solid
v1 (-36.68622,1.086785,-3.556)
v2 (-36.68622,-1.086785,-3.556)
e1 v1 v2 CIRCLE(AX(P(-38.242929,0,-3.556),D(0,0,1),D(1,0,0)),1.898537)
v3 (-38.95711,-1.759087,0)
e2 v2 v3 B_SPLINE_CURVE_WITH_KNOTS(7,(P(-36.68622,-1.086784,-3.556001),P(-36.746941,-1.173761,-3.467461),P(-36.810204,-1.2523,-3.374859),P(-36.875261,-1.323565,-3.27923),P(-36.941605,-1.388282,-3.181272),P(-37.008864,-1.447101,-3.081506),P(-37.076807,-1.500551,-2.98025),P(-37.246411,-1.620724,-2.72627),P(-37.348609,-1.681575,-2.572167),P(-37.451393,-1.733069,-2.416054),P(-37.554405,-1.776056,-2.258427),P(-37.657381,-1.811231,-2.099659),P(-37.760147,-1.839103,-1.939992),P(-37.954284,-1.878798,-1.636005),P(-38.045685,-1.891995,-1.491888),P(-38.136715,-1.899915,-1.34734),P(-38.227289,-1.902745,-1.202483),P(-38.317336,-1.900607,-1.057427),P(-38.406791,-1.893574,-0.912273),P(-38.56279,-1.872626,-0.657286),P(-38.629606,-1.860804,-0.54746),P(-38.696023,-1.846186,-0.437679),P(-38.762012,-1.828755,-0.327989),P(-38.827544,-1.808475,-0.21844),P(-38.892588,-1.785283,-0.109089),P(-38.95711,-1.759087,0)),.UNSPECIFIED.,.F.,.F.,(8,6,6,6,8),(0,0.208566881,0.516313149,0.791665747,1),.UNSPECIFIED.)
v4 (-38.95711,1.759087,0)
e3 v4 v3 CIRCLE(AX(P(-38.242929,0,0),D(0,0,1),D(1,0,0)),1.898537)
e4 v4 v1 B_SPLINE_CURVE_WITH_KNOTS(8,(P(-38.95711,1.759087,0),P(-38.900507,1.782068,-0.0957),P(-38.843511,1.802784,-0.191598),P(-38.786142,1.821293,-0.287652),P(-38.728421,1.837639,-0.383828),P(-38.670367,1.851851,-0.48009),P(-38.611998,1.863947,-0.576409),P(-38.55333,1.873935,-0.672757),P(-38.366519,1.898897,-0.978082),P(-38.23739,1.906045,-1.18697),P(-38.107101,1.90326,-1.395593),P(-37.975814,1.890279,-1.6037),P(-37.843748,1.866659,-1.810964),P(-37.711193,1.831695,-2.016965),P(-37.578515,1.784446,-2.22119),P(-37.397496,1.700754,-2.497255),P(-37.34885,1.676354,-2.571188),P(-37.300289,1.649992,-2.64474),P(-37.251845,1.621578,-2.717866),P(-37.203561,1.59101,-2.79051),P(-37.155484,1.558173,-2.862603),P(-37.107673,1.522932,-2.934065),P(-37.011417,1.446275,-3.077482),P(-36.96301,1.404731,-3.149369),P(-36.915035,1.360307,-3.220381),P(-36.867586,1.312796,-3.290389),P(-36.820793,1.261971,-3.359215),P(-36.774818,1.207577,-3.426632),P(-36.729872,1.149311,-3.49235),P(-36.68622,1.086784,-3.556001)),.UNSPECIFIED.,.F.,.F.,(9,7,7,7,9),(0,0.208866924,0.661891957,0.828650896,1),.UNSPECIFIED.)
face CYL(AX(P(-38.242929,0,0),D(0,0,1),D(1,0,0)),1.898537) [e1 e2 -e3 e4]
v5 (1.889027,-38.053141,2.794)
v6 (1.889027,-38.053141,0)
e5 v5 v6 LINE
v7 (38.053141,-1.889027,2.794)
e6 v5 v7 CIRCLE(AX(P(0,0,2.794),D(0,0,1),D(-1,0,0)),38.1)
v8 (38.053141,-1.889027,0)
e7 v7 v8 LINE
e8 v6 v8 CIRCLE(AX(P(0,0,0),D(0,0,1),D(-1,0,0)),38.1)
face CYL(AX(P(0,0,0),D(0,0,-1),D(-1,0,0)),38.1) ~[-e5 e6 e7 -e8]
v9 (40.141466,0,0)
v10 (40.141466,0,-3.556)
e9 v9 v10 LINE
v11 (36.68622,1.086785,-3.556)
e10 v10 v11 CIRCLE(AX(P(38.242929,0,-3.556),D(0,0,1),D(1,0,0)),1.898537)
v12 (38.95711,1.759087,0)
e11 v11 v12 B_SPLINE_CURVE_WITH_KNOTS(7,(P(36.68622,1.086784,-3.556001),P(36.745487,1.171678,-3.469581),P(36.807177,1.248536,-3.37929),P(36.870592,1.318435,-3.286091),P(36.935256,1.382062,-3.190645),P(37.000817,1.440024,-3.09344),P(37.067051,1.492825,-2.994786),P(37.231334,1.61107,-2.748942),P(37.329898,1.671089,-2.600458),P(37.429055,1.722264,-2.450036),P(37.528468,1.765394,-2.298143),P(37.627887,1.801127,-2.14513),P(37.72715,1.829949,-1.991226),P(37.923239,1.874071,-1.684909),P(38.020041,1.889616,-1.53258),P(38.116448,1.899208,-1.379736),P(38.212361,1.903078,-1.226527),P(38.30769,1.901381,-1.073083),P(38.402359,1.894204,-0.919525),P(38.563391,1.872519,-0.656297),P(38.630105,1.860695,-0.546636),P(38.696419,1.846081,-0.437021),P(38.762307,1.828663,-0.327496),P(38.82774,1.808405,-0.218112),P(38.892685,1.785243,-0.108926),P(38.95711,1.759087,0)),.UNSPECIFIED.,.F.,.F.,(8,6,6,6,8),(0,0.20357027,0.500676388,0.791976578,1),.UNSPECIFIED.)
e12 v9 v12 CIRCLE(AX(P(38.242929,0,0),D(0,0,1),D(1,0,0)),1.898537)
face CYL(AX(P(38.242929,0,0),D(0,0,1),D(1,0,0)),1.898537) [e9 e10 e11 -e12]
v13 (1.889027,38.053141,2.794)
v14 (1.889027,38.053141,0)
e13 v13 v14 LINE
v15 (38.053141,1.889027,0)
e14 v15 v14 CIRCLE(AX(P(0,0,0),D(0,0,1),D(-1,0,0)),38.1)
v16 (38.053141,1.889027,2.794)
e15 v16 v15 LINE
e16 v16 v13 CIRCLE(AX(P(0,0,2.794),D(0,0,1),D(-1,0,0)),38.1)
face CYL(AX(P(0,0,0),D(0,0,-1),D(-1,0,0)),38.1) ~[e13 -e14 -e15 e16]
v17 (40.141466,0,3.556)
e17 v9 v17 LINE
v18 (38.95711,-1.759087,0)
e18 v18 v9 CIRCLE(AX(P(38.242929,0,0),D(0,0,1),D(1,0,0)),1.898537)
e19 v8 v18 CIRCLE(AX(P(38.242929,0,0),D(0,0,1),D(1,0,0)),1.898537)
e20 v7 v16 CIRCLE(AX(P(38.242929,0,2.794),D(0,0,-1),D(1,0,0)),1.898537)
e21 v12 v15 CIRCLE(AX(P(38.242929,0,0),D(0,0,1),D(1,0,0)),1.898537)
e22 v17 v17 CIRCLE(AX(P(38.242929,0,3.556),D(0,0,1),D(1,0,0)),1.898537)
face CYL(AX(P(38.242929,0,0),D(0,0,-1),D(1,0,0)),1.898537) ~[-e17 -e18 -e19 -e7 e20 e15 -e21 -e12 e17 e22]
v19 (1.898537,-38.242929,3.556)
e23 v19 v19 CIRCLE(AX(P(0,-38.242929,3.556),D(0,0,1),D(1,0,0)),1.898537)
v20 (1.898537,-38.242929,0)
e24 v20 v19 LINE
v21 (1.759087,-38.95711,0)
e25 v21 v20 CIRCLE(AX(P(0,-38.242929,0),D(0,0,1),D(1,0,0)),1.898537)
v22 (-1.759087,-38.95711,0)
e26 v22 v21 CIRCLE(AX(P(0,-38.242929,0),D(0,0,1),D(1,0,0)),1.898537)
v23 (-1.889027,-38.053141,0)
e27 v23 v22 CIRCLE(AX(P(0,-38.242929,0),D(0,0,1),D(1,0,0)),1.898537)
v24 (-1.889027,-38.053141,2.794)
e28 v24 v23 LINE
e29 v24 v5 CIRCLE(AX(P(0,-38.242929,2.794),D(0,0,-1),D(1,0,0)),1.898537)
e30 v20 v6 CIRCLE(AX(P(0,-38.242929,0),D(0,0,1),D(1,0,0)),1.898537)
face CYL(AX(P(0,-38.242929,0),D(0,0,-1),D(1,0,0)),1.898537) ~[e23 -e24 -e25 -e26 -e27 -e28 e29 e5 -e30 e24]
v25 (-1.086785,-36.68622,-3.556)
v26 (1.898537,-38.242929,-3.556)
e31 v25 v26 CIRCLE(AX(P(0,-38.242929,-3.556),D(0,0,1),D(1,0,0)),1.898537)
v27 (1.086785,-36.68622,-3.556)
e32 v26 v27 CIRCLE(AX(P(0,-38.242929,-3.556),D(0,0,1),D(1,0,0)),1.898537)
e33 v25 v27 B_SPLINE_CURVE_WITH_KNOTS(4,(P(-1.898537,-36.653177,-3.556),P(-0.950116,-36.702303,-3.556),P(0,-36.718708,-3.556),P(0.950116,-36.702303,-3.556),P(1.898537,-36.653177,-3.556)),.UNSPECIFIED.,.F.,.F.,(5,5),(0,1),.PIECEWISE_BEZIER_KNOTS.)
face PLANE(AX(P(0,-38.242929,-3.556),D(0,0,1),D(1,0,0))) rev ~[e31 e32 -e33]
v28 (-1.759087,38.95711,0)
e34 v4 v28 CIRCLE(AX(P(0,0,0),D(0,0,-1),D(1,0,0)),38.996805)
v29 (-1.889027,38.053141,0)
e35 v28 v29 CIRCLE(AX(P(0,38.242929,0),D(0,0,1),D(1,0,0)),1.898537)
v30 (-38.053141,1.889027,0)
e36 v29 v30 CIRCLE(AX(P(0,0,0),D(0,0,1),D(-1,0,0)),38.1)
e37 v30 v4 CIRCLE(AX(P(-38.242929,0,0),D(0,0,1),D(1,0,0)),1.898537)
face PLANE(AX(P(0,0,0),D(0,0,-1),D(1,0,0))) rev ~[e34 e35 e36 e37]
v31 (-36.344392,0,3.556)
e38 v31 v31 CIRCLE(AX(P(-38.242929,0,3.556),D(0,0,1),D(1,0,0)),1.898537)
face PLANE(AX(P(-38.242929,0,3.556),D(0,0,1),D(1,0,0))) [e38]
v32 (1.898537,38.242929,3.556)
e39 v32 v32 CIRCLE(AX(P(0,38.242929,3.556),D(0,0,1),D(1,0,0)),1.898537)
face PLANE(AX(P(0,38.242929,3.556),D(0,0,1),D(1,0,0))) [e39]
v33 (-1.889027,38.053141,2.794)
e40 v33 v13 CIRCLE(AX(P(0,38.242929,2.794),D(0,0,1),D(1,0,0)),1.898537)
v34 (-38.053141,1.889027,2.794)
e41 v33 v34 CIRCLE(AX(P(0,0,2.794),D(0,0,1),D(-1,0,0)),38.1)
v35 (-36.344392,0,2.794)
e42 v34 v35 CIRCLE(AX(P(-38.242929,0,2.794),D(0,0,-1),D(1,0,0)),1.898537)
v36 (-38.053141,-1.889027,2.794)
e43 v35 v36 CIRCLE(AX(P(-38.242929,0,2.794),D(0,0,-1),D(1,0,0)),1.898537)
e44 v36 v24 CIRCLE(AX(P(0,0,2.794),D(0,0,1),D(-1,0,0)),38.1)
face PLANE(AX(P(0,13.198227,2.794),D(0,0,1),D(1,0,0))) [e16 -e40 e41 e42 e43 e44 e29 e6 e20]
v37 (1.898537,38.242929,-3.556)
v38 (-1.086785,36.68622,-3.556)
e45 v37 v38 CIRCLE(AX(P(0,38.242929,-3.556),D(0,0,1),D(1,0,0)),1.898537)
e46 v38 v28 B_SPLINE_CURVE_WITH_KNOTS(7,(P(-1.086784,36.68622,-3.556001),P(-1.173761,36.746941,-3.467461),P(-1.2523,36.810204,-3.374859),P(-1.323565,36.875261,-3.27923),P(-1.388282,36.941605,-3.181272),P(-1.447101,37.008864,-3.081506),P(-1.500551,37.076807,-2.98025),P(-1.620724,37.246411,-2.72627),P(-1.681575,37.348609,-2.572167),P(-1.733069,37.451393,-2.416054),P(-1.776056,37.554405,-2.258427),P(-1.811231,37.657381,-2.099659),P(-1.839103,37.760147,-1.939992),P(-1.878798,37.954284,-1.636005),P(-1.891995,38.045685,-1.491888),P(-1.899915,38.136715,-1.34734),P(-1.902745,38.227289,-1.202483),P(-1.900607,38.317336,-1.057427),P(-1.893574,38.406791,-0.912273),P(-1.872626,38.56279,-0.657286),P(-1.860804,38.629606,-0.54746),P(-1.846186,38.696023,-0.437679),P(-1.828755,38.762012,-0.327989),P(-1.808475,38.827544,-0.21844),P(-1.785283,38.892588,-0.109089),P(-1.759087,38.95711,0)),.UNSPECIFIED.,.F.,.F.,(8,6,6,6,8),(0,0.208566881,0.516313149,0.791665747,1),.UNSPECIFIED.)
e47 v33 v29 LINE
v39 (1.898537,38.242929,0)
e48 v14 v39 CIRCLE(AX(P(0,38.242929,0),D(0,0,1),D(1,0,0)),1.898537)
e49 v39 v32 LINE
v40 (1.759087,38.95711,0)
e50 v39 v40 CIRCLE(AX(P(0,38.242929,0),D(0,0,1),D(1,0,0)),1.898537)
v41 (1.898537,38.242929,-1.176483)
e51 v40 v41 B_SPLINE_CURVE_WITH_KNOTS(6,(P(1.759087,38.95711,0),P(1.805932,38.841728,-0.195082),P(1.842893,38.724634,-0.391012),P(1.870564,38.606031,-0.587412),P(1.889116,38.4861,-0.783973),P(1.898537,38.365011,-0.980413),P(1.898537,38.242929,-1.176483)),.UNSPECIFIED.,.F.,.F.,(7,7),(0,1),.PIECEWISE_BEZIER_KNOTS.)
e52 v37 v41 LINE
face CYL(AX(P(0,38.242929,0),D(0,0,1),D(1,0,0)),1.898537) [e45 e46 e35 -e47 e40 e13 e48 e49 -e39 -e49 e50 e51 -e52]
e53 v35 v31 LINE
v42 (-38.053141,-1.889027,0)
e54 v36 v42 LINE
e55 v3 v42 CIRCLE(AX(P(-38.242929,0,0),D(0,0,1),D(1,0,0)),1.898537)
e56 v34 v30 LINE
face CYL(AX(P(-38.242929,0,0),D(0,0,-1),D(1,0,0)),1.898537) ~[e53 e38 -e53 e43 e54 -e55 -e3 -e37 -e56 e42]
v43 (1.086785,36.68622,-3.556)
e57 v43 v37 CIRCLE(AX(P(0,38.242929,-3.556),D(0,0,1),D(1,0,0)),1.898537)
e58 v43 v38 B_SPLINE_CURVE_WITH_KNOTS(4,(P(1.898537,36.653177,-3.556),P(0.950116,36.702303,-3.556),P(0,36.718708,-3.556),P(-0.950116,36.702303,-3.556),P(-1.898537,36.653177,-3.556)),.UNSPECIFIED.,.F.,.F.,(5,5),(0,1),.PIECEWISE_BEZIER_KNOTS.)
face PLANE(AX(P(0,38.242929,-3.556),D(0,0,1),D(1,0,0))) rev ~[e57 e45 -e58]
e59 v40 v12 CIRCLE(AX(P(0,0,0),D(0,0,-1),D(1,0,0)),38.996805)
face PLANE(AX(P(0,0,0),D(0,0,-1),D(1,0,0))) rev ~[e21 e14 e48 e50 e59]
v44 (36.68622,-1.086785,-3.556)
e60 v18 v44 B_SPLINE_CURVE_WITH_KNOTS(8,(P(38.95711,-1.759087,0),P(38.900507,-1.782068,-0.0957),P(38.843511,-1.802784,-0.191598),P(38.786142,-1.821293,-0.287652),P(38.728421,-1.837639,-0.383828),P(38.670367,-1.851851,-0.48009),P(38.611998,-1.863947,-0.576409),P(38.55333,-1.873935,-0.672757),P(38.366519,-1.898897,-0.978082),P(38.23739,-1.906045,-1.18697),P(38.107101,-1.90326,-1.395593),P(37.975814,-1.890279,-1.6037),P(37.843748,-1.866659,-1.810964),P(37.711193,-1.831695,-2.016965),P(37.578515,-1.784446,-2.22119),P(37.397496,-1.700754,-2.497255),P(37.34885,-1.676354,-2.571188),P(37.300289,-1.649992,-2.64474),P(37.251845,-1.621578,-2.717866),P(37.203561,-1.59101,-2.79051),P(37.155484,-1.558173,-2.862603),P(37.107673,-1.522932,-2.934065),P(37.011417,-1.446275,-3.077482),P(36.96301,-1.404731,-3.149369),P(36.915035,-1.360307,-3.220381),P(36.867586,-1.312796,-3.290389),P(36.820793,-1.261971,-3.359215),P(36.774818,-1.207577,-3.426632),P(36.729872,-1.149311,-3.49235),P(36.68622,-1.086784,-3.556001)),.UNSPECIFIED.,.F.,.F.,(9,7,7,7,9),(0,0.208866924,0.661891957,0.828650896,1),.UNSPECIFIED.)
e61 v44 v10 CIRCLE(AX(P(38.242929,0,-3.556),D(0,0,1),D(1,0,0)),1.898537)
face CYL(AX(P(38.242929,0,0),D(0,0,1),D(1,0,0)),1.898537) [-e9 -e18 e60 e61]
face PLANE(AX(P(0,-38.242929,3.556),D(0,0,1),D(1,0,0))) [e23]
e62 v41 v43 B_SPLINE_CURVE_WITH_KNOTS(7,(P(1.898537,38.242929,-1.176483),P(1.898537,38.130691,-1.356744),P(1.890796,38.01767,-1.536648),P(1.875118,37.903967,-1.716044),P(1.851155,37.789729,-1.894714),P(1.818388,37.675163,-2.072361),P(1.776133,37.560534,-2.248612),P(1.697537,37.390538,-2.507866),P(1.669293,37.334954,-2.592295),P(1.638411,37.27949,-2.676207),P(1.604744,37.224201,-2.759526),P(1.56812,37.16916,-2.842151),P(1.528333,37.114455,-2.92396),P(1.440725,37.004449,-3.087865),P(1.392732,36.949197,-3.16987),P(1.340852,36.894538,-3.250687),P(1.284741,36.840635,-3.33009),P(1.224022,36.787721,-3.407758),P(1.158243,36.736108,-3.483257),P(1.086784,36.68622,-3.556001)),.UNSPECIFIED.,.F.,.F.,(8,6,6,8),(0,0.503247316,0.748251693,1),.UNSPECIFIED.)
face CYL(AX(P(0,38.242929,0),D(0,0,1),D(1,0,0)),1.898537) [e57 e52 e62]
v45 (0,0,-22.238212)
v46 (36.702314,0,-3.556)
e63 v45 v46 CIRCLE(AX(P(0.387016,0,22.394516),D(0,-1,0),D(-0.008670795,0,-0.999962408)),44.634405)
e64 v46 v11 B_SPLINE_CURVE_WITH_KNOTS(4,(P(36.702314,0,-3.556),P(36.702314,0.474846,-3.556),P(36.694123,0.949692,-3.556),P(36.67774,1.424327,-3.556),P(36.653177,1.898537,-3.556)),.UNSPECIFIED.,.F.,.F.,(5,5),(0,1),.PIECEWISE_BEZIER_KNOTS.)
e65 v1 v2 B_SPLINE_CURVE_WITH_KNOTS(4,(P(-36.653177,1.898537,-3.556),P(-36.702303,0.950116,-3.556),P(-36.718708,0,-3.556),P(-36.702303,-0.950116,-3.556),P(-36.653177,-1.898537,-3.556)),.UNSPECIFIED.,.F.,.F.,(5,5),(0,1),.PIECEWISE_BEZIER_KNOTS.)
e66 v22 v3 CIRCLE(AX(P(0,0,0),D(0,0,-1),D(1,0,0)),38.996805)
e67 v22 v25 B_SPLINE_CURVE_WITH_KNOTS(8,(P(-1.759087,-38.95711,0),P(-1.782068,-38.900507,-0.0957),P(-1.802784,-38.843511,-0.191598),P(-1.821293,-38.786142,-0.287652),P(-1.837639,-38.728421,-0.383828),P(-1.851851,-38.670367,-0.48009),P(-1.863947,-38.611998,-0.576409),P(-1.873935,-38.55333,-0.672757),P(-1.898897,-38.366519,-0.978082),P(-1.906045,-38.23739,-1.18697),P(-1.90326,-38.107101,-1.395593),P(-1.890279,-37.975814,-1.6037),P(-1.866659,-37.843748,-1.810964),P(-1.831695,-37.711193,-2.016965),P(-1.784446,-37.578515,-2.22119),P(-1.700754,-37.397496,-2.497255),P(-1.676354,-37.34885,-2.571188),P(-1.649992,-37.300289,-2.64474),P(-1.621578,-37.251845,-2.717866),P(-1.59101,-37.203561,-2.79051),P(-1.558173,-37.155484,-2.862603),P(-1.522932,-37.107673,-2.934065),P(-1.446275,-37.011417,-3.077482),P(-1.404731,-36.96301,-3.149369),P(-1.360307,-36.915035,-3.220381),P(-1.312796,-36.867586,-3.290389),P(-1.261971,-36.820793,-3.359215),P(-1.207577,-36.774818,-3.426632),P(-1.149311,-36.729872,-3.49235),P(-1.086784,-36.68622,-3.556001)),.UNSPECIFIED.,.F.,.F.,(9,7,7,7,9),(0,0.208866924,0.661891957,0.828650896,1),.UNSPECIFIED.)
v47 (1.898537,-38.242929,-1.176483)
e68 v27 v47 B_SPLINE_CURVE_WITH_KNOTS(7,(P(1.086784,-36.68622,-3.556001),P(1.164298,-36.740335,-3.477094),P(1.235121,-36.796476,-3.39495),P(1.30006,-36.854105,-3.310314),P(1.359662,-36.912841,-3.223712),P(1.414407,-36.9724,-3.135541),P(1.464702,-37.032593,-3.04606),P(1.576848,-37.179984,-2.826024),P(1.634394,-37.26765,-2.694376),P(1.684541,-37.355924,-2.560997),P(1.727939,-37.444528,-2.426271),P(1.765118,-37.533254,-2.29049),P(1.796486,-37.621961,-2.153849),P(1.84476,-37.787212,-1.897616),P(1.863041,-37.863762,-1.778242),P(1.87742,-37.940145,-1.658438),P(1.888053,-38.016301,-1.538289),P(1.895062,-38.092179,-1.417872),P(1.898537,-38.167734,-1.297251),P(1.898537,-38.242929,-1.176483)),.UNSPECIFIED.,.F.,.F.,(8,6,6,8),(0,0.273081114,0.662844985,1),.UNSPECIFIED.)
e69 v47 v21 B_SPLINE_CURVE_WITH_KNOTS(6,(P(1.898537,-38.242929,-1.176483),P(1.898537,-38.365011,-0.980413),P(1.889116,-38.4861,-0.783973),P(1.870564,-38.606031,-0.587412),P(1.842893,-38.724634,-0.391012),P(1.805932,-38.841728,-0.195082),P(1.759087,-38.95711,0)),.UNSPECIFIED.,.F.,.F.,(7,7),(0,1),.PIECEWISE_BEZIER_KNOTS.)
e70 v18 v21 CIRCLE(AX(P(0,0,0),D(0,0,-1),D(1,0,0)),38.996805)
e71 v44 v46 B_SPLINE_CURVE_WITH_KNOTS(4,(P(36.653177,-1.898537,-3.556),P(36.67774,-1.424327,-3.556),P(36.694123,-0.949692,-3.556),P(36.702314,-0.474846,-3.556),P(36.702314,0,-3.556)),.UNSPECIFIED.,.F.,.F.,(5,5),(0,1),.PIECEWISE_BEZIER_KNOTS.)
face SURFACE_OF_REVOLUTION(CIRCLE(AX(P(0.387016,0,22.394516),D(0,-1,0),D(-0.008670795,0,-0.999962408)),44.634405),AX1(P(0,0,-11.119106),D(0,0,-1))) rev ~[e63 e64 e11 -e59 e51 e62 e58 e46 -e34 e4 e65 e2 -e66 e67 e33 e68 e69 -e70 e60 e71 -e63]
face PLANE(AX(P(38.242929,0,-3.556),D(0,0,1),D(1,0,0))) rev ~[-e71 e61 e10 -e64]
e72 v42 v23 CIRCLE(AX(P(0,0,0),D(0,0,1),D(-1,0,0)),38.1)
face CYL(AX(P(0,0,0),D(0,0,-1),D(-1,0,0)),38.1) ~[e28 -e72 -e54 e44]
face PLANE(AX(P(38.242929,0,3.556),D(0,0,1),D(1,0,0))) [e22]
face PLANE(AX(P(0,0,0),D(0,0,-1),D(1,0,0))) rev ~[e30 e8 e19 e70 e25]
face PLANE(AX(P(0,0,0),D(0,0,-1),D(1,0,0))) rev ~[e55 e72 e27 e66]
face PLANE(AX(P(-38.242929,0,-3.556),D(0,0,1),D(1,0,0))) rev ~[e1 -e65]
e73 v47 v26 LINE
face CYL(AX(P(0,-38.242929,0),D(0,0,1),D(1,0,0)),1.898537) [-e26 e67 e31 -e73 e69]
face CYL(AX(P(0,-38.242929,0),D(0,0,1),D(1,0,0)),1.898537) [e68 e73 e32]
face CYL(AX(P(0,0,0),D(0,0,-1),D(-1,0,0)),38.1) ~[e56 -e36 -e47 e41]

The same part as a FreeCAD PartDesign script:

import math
import FreeCAD as App
import Part
import Sketcher
Q = App.Units.Quantity

doc = App.newDocument("Part")
params = doc.addObject("Spreadsheet::Sheet", "Params")
for row, (alias, value) in enumerate([
    ("revolution_angle", "360 deg"),
    ("sketch2_diameter", "3 in"),
    ("pad1_length", "0.11 in"),
    ("pad2_length", "0.28 in"),
], start=1):
    params.set(f"A{row}", alias)
    params.set(f"B{row}", "=" + value)
    params.setAlias(f"B{row}", alias)

body = doc.addObject("PartDesign::Body", "Body")

sketch1 = body.newObject("Sketcher::SketchObject", "Sketch")
sketch1.AttachmentSupport = (doc.getObject("XZ_Plane"), [""])
sketch1.MapMode = "FlatFace"
sketch1.addGeometry([
    Part.LineSegment(App.Vector(0, 0, 0), App.Vector(0, -22.238212, 0)),
    Part.ArcOfCircle(Part.Circle(App.Vector(0.387016, 22.394516, 0), App.Vector(0, 0, 1), 44.634405), math.radians(-90.496806), math.radians(-30.114663)),
    Part.LineSegment(App.Vector(38.996805, 0, 0), App.Vector(0, 0, 0)),
], False)
sketch1.addConstraint([
    Sketcher.Constraint("Coincident", 0, 2, 1, 1),
    Sketcher.Constraint("Coincident", 1, 2, 2, 1),
    Sketcher.Constraint("Coincident", 2, 2, 0, 1),
    Sketcher.Constraint("Vertical", 0),
    Sketcher.Constraint("Horizontal", 2),
    Sketcher.Constraint("Coincident", 2, 2, -1, 1),
    Sketcher.Constraint("Radius", 1, Q("44.634405 mm")),
    Sketcher.Constraint("DistanceX", 2, 2, 2, 1, Q("38.996805 mm")),
    Sketcher.Constraint("DistanceY", 0, 2, 0, 1, Q("22.238212 mm")),
])
revolution = body.newObject("PartDesign::Revolution", "Revolution")
revolution.Profile = sketch1
revolution.ReferenceAxis = (sketch1, ["V_Axis"])
revolution.setExpression("Angle", "Params.revolution_angle")

sketch2 = body.newObject("Sketcher::SketchObject", "Sketch001")
sketch2.AttachmentSupport = (doc.getObject("XY_Plane"), [""])
sketch2.MapMode = "FlatFace"
sketch2.addGeometry(Part.Circle(App.Vector(0, 0, 0), App.Vector(0, 0, 1), 38.1), False)
sketch2.addConstraint([
    Sketcher.Constraint("Coincident", 0, 3, -1, 1),
    Sketcher.Constraint("Diameter", 0, Q("3 in")),
])
sketch2.setExpression("Constraints[1]", "Params.sketch2_diameter")
pad1 = body.newObject("PartDesign::Pad", "Pad")
pad1.Profile = sketch2
pad1.setExpression("Length", "Params.pad1_length")

sketch3 = body.newObject("Sketcher::SketchObject", "Sketch002")
sketch3.AttachmentSupport = (doc.getObject("XY_Plane"), [""])
sketch3.MapMode = "FlatFace"
sketch3.addGeometry([
    Part.Circle(App.Vector(-38.242929, 0, 0), App.Vector(0, 0, 1), 1.898537),
    Part.Circle(App.Vector(0, -38.242929, 0), App.Vector(0, 0, 1), 1.898537),
    Part.Circle(App.Vector(38.242929, 0, 0), App.Vector(0, 0, 1), 1.898537),
    Part.Circle(App.Vector(0, 38.242929, 0), App.Vector(0, 0, 1), 1.898537),
], False)
sketch3.addConstraint([
    Sketcher.Constraint("Equal", 0, 1),
    Sketcher.Constraint("Equal", 1, 2),
    Sketcher.Constraint("Equal", 2, 3),
    Sketcher.Constraint("Symmetric", 0, 3, 2, 3, -1, 1),
    Sketcher.Constraint("Symmetric", 1, 3, 3, 3, -1, 1),
    Sketcher.Constraint("PointOnObject", 0, 3, -1),
    Sketcher.Constraint("PointOnObject", 1, 3, -2),
    Sketcher.Constraint("Diameter", 0, Q("3.797074 mm")),
    Sketcher.Constraint("DistanceX", 0, 3, -1, 1, Q("38.242929 mm")),
    Sketcher.Constraint("DistanceY", 1, 3, -1, 1, Q("38.242929 mm")),
])
pad2 = body.newObject("PartDesign::Pad", "Pad001")
pad2.Profile = sketch3
pad2.setExpression("Length", "Params.pad2_length")
pad2.Midplane = True

doc.recompute()
